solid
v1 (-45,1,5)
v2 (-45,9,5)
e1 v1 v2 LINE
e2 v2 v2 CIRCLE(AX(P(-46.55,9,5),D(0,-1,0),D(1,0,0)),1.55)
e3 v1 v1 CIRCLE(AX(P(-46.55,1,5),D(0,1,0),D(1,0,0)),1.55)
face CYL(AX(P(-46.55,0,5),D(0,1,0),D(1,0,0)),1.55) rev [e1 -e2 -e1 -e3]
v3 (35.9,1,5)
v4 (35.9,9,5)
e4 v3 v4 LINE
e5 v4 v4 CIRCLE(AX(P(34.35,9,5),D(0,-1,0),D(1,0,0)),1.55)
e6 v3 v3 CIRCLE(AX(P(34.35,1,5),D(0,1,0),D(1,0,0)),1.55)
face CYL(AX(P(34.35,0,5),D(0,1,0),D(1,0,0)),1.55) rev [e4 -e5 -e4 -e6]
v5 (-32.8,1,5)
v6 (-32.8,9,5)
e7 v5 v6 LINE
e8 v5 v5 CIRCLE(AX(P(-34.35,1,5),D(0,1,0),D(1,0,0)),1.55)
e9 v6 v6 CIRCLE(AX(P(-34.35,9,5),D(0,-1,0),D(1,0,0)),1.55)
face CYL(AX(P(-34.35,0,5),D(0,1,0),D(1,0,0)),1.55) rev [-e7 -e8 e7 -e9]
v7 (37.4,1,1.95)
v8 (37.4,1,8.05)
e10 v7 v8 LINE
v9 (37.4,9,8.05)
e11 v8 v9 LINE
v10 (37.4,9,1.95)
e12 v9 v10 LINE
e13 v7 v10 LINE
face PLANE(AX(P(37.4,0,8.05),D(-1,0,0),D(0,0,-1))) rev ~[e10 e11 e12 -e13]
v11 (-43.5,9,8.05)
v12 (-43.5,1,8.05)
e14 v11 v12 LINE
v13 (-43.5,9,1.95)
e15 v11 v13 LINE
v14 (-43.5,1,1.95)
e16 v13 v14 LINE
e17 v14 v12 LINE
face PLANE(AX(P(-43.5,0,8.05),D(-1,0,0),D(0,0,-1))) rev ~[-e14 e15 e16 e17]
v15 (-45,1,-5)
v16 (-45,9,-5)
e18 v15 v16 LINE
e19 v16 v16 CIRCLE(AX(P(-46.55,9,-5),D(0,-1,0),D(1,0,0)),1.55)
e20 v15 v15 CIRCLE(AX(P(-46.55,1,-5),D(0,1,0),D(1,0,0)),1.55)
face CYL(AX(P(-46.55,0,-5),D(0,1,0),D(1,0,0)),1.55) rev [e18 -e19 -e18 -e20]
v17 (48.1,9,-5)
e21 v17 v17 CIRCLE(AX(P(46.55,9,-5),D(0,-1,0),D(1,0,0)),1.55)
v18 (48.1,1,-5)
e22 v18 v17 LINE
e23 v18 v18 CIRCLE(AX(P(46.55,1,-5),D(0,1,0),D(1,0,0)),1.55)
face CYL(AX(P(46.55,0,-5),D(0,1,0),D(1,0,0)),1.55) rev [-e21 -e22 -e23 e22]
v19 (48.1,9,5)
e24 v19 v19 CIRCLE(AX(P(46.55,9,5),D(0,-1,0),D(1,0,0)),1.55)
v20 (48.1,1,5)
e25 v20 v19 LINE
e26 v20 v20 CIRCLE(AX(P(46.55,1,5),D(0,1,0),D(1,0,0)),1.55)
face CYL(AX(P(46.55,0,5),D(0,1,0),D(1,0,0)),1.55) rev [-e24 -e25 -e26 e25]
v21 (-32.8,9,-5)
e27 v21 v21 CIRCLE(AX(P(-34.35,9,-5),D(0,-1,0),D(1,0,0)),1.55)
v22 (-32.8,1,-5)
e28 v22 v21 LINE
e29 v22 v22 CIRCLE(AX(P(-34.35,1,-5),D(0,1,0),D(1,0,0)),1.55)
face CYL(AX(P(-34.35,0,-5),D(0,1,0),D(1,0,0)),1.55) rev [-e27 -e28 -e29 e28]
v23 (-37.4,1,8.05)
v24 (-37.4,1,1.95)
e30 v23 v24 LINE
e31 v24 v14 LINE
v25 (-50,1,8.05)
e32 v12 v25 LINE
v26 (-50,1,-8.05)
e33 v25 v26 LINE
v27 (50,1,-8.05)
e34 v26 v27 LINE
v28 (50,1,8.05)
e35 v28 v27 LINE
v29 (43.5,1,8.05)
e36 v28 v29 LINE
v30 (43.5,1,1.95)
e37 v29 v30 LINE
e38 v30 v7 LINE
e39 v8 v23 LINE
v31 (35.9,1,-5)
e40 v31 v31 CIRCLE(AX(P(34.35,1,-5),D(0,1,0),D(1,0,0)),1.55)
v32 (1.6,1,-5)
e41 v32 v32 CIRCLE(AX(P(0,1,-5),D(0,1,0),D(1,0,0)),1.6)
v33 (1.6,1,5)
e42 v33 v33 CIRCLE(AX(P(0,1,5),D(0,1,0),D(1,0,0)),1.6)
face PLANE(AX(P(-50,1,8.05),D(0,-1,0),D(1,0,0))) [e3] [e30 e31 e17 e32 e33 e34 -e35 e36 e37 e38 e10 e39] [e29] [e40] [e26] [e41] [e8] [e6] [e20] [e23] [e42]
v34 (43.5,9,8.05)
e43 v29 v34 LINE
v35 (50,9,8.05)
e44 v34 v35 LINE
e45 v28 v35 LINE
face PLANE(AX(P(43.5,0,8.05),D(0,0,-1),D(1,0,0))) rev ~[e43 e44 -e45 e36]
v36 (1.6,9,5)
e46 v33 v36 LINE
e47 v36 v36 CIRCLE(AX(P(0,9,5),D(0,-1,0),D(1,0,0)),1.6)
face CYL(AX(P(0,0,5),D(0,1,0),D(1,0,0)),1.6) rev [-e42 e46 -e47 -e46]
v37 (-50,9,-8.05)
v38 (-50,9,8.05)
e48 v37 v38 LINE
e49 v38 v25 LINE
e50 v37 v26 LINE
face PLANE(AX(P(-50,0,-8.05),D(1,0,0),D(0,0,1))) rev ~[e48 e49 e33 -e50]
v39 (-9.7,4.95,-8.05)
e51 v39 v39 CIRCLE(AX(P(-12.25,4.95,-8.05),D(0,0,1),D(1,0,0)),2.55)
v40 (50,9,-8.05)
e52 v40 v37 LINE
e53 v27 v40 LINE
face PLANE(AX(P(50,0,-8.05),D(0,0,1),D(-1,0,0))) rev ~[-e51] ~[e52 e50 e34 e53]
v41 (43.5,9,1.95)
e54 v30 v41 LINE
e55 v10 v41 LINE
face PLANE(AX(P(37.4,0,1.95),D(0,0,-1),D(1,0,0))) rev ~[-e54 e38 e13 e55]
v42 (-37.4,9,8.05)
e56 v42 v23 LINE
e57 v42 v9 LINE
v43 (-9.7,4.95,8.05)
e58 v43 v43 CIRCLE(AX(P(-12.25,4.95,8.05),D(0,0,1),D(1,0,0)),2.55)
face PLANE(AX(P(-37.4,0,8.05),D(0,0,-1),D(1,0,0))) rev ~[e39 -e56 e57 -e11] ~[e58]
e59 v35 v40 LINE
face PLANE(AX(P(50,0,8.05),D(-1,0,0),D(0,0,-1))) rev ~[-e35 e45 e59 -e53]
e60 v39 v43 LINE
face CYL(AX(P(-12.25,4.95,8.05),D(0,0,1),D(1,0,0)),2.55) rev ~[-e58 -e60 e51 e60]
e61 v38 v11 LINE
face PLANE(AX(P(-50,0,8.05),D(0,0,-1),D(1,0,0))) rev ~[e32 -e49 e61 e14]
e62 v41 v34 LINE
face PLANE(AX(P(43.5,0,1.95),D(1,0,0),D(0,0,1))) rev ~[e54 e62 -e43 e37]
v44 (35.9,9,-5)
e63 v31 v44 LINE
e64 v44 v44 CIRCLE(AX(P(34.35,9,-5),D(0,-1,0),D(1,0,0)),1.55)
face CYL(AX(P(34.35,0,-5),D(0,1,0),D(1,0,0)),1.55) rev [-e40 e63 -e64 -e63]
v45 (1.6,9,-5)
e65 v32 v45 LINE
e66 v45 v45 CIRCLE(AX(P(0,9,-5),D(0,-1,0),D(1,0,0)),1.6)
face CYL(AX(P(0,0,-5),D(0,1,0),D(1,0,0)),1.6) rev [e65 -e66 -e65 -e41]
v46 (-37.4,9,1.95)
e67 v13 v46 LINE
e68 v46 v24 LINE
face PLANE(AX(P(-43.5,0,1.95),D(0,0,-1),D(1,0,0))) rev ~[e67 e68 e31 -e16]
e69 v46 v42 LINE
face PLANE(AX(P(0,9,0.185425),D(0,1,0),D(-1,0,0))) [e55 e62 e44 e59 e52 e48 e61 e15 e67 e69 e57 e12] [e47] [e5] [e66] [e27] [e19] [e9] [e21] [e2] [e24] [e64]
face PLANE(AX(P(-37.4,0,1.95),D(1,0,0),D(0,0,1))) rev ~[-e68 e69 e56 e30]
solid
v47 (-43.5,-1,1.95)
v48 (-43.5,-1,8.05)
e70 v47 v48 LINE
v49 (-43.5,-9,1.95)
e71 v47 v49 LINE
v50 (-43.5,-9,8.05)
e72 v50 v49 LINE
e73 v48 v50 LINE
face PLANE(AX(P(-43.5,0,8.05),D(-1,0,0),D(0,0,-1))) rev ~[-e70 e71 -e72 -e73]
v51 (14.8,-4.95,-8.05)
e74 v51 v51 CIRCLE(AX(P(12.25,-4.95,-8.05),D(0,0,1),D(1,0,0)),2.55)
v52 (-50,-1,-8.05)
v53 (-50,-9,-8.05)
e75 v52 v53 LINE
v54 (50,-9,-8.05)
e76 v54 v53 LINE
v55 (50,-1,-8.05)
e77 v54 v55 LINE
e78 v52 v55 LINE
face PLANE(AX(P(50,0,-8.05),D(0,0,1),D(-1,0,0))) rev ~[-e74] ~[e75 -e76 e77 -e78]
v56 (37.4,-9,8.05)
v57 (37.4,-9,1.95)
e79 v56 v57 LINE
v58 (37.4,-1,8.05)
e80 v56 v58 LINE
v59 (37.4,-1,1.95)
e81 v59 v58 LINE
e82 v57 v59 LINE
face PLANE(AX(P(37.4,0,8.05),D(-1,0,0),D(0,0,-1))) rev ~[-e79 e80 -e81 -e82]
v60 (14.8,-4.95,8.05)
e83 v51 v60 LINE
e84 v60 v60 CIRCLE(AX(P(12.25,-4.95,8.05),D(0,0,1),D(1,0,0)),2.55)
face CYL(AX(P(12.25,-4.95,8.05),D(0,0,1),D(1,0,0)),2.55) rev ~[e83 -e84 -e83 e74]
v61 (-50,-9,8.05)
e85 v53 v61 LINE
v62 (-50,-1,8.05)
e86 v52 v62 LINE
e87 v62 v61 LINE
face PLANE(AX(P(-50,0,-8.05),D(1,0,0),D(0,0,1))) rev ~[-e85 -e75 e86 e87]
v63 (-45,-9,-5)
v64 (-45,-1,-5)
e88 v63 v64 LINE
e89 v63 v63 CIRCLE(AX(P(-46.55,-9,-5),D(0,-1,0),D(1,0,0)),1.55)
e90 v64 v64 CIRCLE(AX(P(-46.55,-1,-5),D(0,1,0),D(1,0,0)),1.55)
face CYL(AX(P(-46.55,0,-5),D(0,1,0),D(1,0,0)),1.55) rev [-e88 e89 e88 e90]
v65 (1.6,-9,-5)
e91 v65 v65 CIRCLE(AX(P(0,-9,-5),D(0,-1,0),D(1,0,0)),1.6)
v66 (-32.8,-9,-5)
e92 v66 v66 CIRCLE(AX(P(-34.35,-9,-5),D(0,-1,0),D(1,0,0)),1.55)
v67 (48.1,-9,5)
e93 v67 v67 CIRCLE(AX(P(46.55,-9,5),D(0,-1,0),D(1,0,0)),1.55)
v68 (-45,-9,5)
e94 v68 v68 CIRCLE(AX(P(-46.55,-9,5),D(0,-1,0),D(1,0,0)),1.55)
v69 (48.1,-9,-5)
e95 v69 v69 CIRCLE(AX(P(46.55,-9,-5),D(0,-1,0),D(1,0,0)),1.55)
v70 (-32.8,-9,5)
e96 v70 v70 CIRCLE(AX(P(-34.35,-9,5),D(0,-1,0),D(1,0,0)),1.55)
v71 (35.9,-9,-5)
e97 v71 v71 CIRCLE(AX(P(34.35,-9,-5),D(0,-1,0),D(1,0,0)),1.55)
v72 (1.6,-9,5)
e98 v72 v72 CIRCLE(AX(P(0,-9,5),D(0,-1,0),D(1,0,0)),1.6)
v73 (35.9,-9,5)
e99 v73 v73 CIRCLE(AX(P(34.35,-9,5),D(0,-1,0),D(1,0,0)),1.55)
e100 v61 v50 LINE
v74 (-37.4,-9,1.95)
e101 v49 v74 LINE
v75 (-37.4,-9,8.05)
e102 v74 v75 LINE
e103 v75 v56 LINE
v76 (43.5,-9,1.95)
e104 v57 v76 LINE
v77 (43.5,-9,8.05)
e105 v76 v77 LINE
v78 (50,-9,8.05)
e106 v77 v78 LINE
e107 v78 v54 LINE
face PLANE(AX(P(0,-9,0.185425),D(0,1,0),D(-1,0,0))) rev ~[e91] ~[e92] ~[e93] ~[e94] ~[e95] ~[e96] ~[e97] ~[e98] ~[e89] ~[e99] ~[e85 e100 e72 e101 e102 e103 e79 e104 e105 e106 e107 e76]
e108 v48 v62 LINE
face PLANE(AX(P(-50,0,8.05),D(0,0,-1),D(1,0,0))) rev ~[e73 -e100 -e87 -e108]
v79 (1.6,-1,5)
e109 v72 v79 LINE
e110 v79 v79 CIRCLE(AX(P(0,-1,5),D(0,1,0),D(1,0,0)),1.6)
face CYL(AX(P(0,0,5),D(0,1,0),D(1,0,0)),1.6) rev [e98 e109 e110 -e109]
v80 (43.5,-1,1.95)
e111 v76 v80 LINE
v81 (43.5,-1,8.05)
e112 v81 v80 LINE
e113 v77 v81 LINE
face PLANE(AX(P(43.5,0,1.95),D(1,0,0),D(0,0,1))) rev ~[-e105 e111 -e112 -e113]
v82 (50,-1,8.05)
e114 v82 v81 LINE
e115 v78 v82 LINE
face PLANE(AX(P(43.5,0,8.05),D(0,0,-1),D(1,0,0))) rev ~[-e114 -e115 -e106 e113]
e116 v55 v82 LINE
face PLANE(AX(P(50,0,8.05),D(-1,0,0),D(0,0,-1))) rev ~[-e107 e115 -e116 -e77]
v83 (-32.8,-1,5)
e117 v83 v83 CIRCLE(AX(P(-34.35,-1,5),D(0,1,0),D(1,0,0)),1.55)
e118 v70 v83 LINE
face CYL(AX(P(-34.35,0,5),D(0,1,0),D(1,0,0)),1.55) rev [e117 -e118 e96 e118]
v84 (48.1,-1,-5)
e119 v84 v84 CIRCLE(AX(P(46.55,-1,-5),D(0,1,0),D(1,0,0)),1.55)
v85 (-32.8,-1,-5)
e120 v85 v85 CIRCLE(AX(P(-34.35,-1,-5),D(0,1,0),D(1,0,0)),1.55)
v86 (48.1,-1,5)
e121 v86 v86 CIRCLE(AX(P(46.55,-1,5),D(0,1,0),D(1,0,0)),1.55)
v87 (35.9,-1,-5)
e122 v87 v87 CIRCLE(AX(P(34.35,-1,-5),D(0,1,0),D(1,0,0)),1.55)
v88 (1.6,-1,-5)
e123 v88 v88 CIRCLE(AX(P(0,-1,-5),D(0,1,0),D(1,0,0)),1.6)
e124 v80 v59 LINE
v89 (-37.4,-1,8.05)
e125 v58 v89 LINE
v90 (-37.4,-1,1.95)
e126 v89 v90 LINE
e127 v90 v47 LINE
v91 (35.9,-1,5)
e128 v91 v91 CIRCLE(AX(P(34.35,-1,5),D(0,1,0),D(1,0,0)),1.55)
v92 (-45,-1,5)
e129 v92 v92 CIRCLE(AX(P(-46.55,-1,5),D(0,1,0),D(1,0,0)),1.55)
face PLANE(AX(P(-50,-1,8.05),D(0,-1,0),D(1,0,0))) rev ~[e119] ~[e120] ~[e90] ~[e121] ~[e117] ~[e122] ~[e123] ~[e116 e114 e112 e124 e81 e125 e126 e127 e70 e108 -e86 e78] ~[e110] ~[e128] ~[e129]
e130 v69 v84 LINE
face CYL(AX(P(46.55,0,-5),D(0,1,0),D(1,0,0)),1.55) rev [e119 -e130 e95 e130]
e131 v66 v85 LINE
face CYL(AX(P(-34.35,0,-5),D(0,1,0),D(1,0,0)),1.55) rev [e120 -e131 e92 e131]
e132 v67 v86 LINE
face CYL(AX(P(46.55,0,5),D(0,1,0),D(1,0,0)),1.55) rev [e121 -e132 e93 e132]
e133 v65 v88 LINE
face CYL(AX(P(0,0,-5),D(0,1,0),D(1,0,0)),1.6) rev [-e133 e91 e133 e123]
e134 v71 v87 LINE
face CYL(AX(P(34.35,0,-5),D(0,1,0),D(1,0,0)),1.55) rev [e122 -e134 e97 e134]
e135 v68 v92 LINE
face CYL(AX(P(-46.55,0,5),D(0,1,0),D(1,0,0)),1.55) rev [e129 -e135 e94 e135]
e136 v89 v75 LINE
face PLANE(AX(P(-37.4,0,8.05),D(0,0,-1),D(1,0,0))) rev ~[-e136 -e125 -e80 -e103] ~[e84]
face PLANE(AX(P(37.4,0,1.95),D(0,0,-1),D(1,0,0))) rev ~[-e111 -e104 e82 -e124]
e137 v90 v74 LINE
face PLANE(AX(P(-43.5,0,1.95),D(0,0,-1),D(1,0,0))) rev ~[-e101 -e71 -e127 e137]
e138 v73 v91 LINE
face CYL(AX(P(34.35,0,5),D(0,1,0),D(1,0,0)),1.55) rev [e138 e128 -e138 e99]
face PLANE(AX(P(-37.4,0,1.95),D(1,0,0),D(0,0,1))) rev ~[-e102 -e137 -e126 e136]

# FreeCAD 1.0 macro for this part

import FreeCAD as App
import Part
import Sketcher

V = App.Vector
Q = App.Units.Quantity

doc = App.newDocument("Part")
body = doc.addObject("PartDesign::Body", "Body")

# Sketch on XY plane
sketch1 = body.newObject("Sketcher::SketchObject", "Sketch")
sketch1.AttachmentSupport = (doc.getObject("XY_Plane"), [""])
sketch1.MapMode = "FlatFace"
sketch1.AttachmentOffset = App.Placement(V(0, 0, 8.05), App.Rotation())
sketch1.addGeometry([
    Part.LineSegment(V(-50, 1, 0), V(-50, -1, 0)),
    Part.LineSegment(V(-50, -1, 0), V(50, -1, 0)),
    Part.LineSegment(V(50, -1, 0), V(50, 1, 0)),
    Part.LineSegment(V(50, 1, 0), V(-50, 1, 0)),
], False)
sketch1.addConstraint([
    Sketcher.Constraint("Coincident", 0, 2, 1, 1),
    Sketcher.Constraint("Coincident", 1, 2, 2, 1),
    Sketcher.Constraint("Coincident", 2, 2, 3, 1),
    Sketcher.Constraint("Coincident", 3, 2, 0, 1),
    Sketcher.Constraint("Vertical", 0),
    Sketcher.Constraint("Horizontal", 1),
    Sketcher.Constraint("Vertical", 2),
    Sketcher.Constraint("Horizontal", 3),
    Sketcher.Constraint("Symmetric", 0, 2, 2, 2, -1, 1),
    Sketcher.Constraint("DistanceX", 1, 1, 1, 2, Q("100 mm")),
    Sketcher.Constraint("DistanceY", 0, 2, 0, 1, Q("2 mm")),
])
pad1 = body.newObject("PartDesign::Pad", "Pad")
pad1.Profile = sketch1
pad1.Type = "TwoLengths"
pad1.Length = 10
pad1.Length2 = 50
body2 = doc.addObject("PartDesign::Body", "Body001")
body2.AllowCompound = True

# Sketch on XY plane
sketch2 = body2.newObject("Sketcher::SketchObject", "Sketch001")
sketch2.AttachmentSupport = (doc.getObject("XY_Plane001"), [""])
sketch2.MapMode = "FlatFace"
sketch2.AttachmentOffset = App.Placement(V(0, 0, 8.05), App.Rotation())
sketch2.addGeometry([
    Part.Circle(V(-12.2, 5, 0), V(0, 0, 1), 2.5),
    Part.Circle(V(12.2, -5, 0), V(0, 0, 1), 2.5),
], False)
sketch2.addConstraint([
    Sketcher.Constraint("Equal", 0, 1),
    Sketcher.Constraint("Symmetric", 0, 3, 1, 3, -1, 1),
    Sketcher.Constraint("Diameter", 0, Q("5.1 mm")),
    Sketcher.Constraint("DistanceX", 0, 3, 1, 3, Q("24.5 mm")),
    Sketcher.Constraint("DistanceY", 1, 3, 0, 3, Q("9.9 mm")),
])
pad2 = body2.newObject("PartDesign::Pad", "Pad001")
pad2.Profile = sketch2
pad2.Type = "TwoLengths"
pad2.Length = 0.01
pad2.Length2 = 50.01
body3 = doc.addObject("PartDesign::Body", "Body002")
body3.AllowCompound = True

# Sketch on XZ plane
sketch3 = body3.newObject("Sketcher::SketchObject", "Sketch002")
sketch3.AttachmentSupport = (doc.getObject("XZ_Plane002"), [""])
sketch3.MapMode = "FlatFace"
sketch3.addGeometry([
    Part.LineSegment(V(37.4, 8.1, 0), V(-37.4, 8.1, 0)),  # 0
    Part.LineSegment(V(-37.4, 8.1, 0), V(-37.4, 1.9, 0)),  # 1
    Part.LineSegment(V(-37.4, 1.9, 0), V(-43.5, 1.9, 0)),  # 2
    Part.LineSegment(V(-43.5, 1.9, 0), V(-43.5, 8.1, 0)),  # 3
    Part.LineSegment(V(-43.5, 8.1, 0), V(-50, 8.1, 0)),  # 4
    Part.LineSegment(V(-50, 8.1, 0), V(-50, -8.1, 0)),  # 5
    Part.LineSegment(V(-50, -8.1, 0), V(50, -8.1, 0)),  # 6
    Part.LineSegment(V(50, -8.1, 0), V(50, 8.1, 0)),  # 7
    Part.LineSegment(V(50, 8.1, 0), V(43.5, 8.1, 0)),  # 8
    Part.LineSegment(V(43.5, 8.1, 0), V(43.5, 1.9, 0)),  # 9
    Part.LineSegment(V(43.5, 1.9, 0), V(37.4, 1.9, 0)),  # 10
    Part.LineSegment(V(37.4, 1.9, 0), V(37.4, 8.1, 0)),  # 11
    Part.Circle(V(46.5, -5, 0), V(0, 0, 1), 1.6),  # 12
    Part.Circle(V(34.4, -5, 0), V(0, 0, 1), 1.6),  # 13
    Part.Circle(V(0, -5, 0), V(0, 0, 1), 1.6),  # 14
    Part.Circle(V(-34.4, -5, 0), V(0, 0, 1), 1.6),  # 15
    Part.Circle(V(-46.5, -5, 0), V(0, 0, 1), 1.6),  # 16
    Part.Circle(V(46.5, 5, 0), V(0, 0, 1), 1.6),  # 17
    Part.Circle(V(34.4, 5, 0), V(0, 0, 1), 1.6),  # 18
    Part.Circle(V(0, 5, 0), V(0, 0, 1), 1.6),  # 19
    Part.Circle(V(-34.4, 5, 0), V(0, 0, 1), 1.6),  # 20
    Part.Circle(V(-46.5, 5, 0), V(0, 0, 1), 1.6),  # 21
], False)
sketch3.addConstraint([
    Sketcher.Constraint("Coincident", 0, 2, 1, 1),
    Sketcher.Constraint("Coincident", 1, 2, 2, 1),
    Sketcher.Constraint("Coincident", 2, 2, 3, 1),
    Sketcher.Constraint("Coincident", 3, 2, 4, 1),
    Sketcher.Constraint("Coincident", 4, 2, 5, 1),
    Sketcher.Constraint("Coincident", 5, 2, 6, 1),
    Sketcher.Constraint("Coincident", 6, 2, 7, 1),
    Sketcher.Constraint("Coincident", 7, 2, 8, 1),
    Sketcher.Constraint("Coincident", 8, 2, 9, 1),
    Sketcher.Constraint("Coincident", 9, 2, 10, 1),
    Sketcher.Constraint("Coincident", 10, 2, 11, 1),
    Sketcher.Constraint("Coincident", 11, 2, 0, 1),
    Sketcher.Constraint("Horizontal", 0),
    Sketcher.Constraint("Vertical", 1),
    Sketcher.Constraint("Horizontal", 2),
    Sketcher.Constraint("Vertical", 3),
    Sketcher.Constraint("Horizontal", 4),
    Sketcher.Constraint("Vertical", 5),
    Sketcher.Constraint("Horizontal", 6),
    Sketcher.Constraint("Vertical", 7),
    Sketcher.Constraint("Horizontal", 8),
    Sketcher.Constraint("Vertical", 9),
    Sketcher.Constraint("Horizontal", 10),
    Sketcher.Constraint("Vertical", 11),
    Sketcher.Constraint("Equal", 12, 13),
    Sketcher.Constraint("Equal", 13, 15),
    Sketcher.Constraint("Equal", 15, 16),
    Sketcher.Constraint("Equal", 16, 17),
    Sketcher.Constraint("Equal", 17, 18),
    Sketcher.Constraint("Equal", 14, 19),
    Sketcher.Constraint("Equal", 18, 20),
    Sketcher.Constraint("Equal", 20, 21),
    Sketcher.Constraint("Symmetric", 16, 3, 17, 3, -1, 1),
    Sketcher.Constraint("Symmetric", 15, 3, 18, 3, -1, 1),
    Sketcher.Constraint("Symmetric", 14, 3, 19, 3, -1, 1),
    Sketcher.Constraint("Symmetric", 13, 3, 20, 3, -1, 1),
    Sketcher.Constraint("Symmetric", 12, 3, 21, 3, -1, 1),
    Sketcher.Constraint("Symmetric", 4, 2, 6, 2, -1, 1),
    Sketcher.Constraint("Symmetric", 13, 3, 15, 3, -2),
    Sketcher.Constraint("Symmetric", 12, 3, 16, 3, -2),
    Sketcher.Constraint("Symmetric", 3, 2, 8, 2, -2),
    Sketcher.Constraint("Symmetric", 1, 2, 10, 2, -2),
    Sketcher.Constraint("PointOnObject", 14, 3, -2),
    Sketcher.Constraint("Horizontal", 12, 3, 13, 3),
    Sketcher.Constraint("Horizontal", 13, 3, 14, 3),
    Sketcher.Constraint("Horizontal", 0, 2, 3, 2),
    Sketcher.Constraint("Equal", 10, 1),
    Sketcher.Constraint("Diameter", 12, Q("3.1 mm")),
    Sketcher.Constraint("Diameter", 14, Q("3.2 mm")),
    Sketcher.Constraint("DistanceX", 6, 1, 6, 2, Q("100 mm")),
    Sketcher.Constraint("DistanceX", 0, 2, 0, 1, Q("74.8 mm")),
    Sketcher.Constraint("DistanceX", 2, 2, 2, 1, Q("6.1 mm")),
    Sketcher.Constraint("DistanceY", 5, 2, 5, 1, Q("16.1 mm")),
    Sketcher.Constraint("DistanceY", 12, 3, -1, 1, Q("5 mm")),
    Sketcher.Constraint("DistanceX", 13, 3, 12, 3, Q("12.2 mm")),
    Sketcher.Constraint("DistanceX", 15, 3, 13, 3, Q("68.7 mm")),
])
pad3 = body3.newObject("PartDesign::Pad", "Pad002")
pad3.Profile = sketch3
pad3.Length = 18
pad3.Midplane = True
doc.recompute()

boolean = body3.newObject("PartDesign::Boolean", "Boolean")
boolean.Type = "Cut"
boolean.addObjects([body2])
doc.recompute()

boolean2 = body3.newObject("PartDesign::Boolean", "Boolean001")
boolean2.Type = "Cut"
boolean2.addObjects([body])

doc.recompute()
